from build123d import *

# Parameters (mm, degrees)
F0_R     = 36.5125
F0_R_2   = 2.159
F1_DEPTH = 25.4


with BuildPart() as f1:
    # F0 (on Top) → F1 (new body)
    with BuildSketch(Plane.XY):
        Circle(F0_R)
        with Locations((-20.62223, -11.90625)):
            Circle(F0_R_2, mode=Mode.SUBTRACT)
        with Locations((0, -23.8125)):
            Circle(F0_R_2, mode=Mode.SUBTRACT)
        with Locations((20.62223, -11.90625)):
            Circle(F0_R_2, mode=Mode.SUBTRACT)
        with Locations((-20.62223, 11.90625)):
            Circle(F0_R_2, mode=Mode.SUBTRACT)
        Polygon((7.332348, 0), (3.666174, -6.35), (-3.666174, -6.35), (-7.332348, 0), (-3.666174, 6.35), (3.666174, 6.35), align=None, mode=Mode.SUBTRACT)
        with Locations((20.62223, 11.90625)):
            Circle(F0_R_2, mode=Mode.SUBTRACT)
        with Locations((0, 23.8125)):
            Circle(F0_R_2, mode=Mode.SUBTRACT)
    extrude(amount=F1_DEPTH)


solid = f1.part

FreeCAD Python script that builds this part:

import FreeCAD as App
import Part
import Sketcher
Q = App.Units.Quantity

doc = App.newDocument("Part")
body = doc.addObject("PartDesign::Body", "Body")

# Sketch on XY plane
sketch1 = body.newObject("Sketcher::SketchObject", "Sketch")
sketch1.AttachmentSupport = (doc.getObject("XY_Plane"), [""])
sketch1.MapMode = "FlatFace"
sketch1.addGeometry([
    Part.Circle(App.Vector(0, 0, 0), App.Vector(0, 0, 1), 36.5),  # 0
    Part.Circle(App.Vector(-20.6, -11.9, 0), App.Vector(0, 0, 1), 2.2),  # 1
    Part.Circle(App.Vector(0, -23.8, 0), App.Vector(0, 0, 1), 2.2),  # 2
    Part.Circle(App.Vector(20.6, -11.9, 0), App.Vector(0, 0, 1), 2.2),  # 3
    Part.Circle(App.Vector(-20.6, 11.9, 0), App.Vector(0, 0, 1), 2.2),  # 4
    Part.LineSegment(App.Vector(3.7, 6.3, 0), App.Vector(7.3, 0, 0)),  # 5
    Part.LineSegment(App.Vector(7.3, 0, 0), App.Vector(3.7, -6.3, 0)),  # 6
    Part.LineSegment(App.Vector(3.7, -6.3, 0), App.Vector(-3.7, -6.3, 0)),  # 7
    Part.LineSegment(App.Vector(-3.7, -6.3, 0), App.Vector(-7.3, 0, 0)),  # 8
    Part.LineSegment(App.Vector(-7.3, 0, 0), App.Vector(-3.7, 6.3, 0)),  # 9
    Part.LineSegment(App.Vector(-3.7, 6.3, 0), App.Vector(3.7, 6.3, 0)),  # 10
    Part.Circle(App.Vector(20.6, 11.9, 0), App.Vector(0, 0, 1), 2.2),  # 11
    Part.Circle(App.Vector(0, 23.8, 0), App.Vector(0, 0, 1), 2.2),  # 12
], False)
sketch1.addConstraint([
    Sketcher.Constraint("Coincident", 5, 2, 6, 1),
    Sketcher.Constraint("Coincident", 6, 2, 7, 1),
    Sketcher.Constraint("Coincident", 7, 2, 8, 1),
    Sketcher.Constraint("Coincident", 8, 2, 9, 1),
    Sketcher.Constraint("Coincident", 9, 2, 10, 1),
    Sketcher.Constraint("Coincident", 10, 2, 5, 1),
    Sketcher.Constraint("Horizontal", 7),
    Sketcher.Constraint("Horizontal", 10),
    Sketcher.Constraint("Coincident", 0, 3, -1, 1),
    Sketcher.Constraint("Equal", 1, 2),
    Sketcher.Constraint("Equal", 2, 3),
    Sketcher.Constraint("Equal", 3, 4),
    Sketcher.Constraint("Equal", 4, 11),
    Sketcher.Constraint("Equal", 11, 12),
    Sketcher.Constraint("Symmetric", 3, 3, 4, 3, -1, 1),
    Sketcher.Constraint("Symmetric", 1, 3, 11, 3, -1, 1),
    Sketcher.Constraint("Symmetric", 2, 3, 12, 3, -1, 1),
    Sketcher.Constraint("Symmetric", 5, 2, 8, 2, -1, 1),
    Sketcher.Constraint("Symmetric", 6, 2, 9, 2, -1, 1),
    Sketcher.Constraint("Symmetric", 1, 3, 3, 3, -2),
    Sketcher.Constraint("PointOnObject", 2, 3, -2),
    Sketcher.Constraint("PointOnObject", 5, 2, -1),
    Sketcher.Constraint("Parallel", 5, 8),
    Sketcher.Constraint("Vertical", 7, 2, 9, 2),
    Sketcher.Constraint("Diameter", 1, Q("0.17 in")),
    Sketcher.Constraint("Diameter", 0, Q("2.875 in")),
    Sketcher.Constraint("Angle", 5, Q("-60.000001 deg")),
    Sketcher.Constraint("DistanceY", 7, 2, 9, 2, Q("0.5 in")),
    Sketcher.Constraint("DistanceY", 1, 3, -1, 1, Q("0.46875 in")),
    Sketcher.Constraint("DistanceY", 2, 3, -1, 1, Q("0.9375 in")),
    Sketcher.Constraint("DistanceX", 7, 2, 7, 1, Q("7.332348 mm")),
    Sketcher.Constraint("DistanceX", 1, 3, -1, 1, Q("20.62223 mm")),
])
pad1 = body.newObject("PartDesign::Pad", "Pad")
pad1.Profile = sketch1
pad1.Length = Q("1 in")

doc.recompute()
